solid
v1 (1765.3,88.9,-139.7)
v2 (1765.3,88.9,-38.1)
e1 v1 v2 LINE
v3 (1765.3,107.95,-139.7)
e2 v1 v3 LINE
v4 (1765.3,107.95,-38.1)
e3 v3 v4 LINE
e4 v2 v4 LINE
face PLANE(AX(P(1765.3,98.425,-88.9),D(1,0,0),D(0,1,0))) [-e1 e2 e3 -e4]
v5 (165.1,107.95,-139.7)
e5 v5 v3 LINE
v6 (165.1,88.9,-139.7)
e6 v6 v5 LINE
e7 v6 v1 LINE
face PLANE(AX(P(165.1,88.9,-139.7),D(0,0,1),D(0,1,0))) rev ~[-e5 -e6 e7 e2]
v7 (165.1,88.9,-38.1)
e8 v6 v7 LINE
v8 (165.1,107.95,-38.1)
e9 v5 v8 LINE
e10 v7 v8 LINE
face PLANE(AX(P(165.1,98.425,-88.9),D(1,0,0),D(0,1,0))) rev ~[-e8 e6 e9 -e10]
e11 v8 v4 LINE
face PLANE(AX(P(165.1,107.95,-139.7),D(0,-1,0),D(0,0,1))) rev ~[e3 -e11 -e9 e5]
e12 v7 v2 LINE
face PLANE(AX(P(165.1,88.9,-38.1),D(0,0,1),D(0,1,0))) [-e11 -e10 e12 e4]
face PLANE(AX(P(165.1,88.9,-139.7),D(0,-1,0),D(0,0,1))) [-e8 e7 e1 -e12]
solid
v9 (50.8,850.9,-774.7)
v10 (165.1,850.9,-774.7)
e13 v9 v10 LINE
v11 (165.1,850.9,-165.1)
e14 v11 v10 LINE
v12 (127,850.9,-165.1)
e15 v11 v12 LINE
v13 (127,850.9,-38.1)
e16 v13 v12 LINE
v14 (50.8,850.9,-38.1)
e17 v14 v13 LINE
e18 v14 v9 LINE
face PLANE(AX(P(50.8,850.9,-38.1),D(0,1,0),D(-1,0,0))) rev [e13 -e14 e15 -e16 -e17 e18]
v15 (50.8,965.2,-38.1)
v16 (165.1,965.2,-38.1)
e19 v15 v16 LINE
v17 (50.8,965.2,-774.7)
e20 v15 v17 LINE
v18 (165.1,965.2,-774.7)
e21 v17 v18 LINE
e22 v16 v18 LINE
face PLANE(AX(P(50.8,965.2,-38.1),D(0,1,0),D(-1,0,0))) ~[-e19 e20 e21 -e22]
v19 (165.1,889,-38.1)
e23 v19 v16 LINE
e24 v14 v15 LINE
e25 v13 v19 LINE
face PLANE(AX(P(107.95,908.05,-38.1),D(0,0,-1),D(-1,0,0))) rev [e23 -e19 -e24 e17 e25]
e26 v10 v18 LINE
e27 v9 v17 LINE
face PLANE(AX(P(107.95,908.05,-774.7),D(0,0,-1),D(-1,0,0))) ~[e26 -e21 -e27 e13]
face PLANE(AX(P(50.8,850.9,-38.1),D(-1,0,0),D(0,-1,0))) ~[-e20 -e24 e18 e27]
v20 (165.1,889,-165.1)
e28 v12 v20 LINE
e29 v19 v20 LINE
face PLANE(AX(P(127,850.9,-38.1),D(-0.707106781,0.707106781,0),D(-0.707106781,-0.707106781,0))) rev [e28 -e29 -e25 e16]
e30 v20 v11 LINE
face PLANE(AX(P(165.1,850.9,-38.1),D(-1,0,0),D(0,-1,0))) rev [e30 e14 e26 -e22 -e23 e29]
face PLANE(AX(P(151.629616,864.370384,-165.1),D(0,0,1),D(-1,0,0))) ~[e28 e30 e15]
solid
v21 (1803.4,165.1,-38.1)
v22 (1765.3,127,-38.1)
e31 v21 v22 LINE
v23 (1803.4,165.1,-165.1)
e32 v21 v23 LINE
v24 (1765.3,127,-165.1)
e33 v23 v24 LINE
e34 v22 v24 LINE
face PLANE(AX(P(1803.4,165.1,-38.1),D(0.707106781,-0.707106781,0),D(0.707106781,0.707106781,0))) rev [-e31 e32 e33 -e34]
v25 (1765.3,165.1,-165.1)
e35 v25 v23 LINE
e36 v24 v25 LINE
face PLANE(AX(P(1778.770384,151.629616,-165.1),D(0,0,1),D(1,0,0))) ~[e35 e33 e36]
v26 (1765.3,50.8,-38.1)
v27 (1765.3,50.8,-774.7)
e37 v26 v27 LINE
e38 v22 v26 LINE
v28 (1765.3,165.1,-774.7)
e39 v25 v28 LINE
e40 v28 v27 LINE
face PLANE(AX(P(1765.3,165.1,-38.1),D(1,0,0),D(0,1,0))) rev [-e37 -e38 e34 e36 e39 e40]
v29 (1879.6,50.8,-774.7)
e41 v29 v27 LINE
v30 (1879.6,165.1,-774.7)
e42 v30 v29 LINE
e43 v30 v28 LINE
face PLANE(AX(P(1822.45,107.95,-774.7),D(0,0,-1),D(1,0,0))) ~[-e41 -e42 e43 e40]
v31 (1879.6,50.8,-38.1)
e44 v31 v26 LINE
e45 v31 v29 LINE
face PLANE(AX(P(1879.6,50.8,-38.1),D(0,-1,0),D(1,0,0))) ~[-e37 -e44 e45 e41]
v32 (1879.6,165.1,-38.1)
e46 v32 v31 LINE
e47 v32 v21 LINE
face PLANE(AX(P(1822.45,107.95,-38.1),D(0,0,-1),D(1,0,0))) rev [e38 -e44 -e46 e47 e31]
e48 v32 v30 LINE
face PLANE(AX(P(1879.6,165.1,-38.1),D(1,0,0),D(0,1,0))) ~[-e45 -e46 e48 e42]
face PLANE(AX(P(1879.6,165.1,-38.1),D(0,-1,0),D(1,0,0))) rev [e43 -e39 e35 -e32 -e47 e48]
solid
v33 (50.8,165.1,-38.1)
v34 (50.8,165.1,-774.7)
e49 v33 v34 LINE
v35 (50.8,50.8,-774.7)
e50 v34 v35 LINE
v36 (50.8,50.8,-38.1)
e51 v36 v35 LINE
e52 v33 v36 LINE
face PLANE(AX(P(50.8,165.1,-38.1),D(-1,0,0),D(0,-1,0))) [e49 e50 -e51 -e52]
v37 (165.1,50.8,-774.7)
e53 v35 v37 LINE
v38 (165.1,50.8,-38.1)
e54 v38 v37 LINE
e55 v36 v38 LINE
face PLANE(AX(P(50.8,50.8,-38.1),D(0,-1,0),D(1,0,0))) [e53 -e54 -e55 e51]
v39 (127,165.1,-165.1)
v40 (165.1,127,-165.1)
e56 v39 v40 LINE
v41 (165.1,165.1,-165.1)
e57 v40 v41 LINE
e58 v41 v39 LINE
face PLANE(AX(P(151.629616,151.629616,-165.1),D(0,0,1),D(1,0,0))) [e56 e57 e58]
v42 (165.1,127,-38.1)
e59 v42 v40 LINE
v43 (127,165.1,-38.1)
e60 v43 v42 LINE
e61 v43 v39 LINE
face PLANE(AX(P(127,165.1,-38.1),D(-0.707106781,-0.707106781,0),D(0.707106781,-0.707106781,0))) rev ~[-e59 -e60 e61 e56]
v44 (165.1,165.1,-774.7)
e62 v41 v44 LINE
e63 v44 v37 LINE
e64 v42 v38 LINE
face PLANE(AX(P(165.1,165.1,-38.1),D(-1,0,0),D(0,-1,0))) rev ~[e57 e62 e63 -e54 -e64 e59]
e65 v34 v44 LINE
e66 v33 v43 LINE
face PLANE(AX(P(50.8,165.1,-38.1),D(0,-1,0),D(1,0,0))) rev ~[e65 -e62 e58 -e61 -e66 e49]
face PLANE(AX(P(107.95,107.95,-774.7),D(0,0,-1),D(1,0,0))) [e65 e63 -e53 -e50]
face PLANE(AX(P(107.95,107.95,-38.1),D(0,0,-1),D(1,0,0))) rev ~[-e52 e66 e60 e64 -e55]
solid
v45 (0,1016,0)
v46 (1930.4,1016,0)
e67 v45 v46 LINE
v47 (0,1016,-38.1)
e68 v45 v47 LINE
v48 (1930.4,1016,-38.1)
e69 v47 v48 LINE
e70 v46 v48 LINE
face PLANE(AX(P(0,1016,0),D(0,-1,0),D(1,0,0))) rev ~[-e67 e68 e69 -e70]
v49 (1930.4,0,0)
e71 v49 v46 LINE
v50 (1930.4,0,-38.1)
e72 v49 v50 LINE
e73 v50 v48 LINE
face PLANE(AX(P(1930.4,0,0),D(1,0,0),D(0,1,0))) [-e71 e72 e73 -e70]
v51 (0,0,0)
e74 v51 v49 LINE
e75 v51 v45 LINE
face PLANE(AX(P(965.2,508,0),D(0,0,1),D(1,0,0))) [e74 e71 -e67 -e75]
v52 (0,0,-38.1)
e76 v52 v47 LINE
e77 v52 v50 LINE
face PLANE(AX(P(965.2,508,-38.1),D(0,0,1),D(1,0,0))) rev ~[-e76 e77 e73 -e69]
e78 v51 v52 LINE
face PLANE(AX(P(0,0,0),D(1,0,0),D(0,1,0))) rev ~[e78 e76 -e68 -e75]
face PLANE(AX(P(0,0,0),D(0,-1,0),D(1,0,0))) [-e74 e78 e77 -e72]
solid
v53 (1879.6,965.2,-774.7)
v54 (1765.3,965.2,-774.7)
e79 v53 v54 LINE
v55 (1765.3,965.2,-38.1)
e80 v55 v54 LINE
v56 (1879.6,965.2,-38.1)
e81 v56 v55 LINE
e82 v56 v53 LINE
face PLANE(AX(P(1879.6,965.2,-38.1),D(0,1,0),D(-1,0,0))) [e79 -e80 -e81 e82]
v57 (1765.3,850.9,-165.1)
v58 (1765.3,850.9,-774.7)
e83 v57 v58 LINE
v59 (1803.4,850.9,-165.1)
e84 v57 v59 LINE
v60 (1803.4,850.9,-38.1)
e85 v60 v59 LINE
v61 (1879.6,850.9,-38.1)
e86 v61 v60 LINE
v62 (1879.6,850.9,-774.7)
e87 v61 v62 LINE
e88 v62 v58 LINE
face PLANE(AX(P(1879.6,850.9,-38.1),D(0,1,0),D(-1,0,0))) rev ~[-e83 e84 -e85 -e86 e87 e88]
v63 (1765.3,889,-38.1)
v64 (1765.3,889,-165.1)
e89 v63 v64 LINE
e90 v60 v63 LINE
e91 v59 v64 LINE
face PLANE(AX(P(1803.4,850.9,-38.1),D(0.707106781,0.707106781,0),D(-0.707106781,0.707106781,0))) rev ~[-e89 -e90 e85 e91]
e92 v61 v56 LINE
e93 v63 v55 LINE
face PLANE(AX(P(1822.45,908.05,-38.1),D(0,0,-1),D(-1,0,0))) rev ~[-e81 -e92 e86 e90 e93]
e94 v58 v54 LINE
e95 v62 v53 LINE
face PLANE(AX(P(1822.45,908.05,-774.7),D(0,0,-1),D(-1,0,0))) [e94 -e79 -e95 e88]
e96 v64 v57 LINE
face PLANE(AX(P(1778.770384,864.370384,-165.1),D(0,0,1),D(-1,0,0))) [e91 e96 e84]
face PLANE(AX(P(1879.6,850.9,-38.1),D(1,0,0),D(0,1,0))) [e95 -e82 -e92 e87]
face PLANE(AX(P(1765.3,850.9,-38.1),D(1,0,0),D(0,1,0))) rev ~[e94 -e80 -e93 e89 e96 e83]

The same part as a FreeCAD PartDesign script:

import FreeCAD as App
import Part
import Sketcher

V = App.Vector
Q = App.Units.Quantity

doc = App.newDocument("Part")
params = doc.addObject("Spreadsheet::Sheet", "Params")
for row, (alias, value) in enumerate([
    ("sketch1_width", "76 in"),
    ("sketch1_height", "40 in"),
    ("pad1_length", "1.5 in"),
    ("sketch2_width", "4.5 in"),
    ("pad2_length", "29 in"),
    ("sketch3_width", "1.5 in"),
    ("pocket1_length", "5 in"),
    ("sketch4_height", "4 in"),
    ("sketch4_width", "0.75 in"),
    ("pad3_length", "63 in"),
], start=1):
    params.set(f"A{row}", alias)
    params.set(f"B{row}", "=" + value)
    params.setAlias(f"B{row}", alias)

body = doc.addObject("PartDesign::Body", "Body")

# Sketch on XY plane
sketch1 = body.newObject("Sketcher::SketchObject", "Sketch")
sketch1.AttachmentSupport = (doc.getObject("XY_Plane"), [""])
sketch1.MapMode = "FlatFace"
sketch1.addGeometry([
    Part.LineSegment(V(0, 1016, 0), V(0, 0, 0)),
    Part.LineSegment(V(0, 0, 0), V(1930, 0, 0)),
    Part.LineSegment(V(1930, 0, 0), V(1930, 1016, 0)),
    Part.LineSegment(V(1930, 1016, 0), V(0, 1016, 0)),
], False)
sketch1.addConstraint([
    Sketcher.Constraint("Coincident", 0, 2, 1, 1),
    Sketcher.Constraint("Coincident", 1, 2, 2, 1),
    Sketcher.Constraint("Coincident", 2, 2, 3, 1),
    Sketcher.Constraint("Coincident", 3, 2, 0, 1),
    Sketcher.Constraint("Vertical", 0),
    Sketcher.Constraint("Horizontal", 1),
    Sketcher.Constraint("Vertical", 2),
    Sketcher.Constraint("Horizontal", 3),
    Sketcher.Constraint("Coincident", 0, 2, -1, 1),
    Sketcher.Constraint("DistanceX", 1, 1, 1, 2, Q("76 in")),
    Sketcher.Constraint("DistanceY", 0, 2, 0, 1, Q("40 in")),
])
sketch1.setExpression("Constraints[9]", "Params.sketch1_width")
sketch1.setExpression("Constraints[10]", "Params.sketch1_height")
pad1 = body.newObject("PartDesign::Pad", "Pad")
pad1.Profile = sketch1
pad1.setExpression("Length", "Params.pad1_length")
pad1.Reversed = True
body2 = doc.addObject("PartDesign::Body", "Body001")

# Sketch on XY plane
sketch2 = body2.newObject("Sketcher::SketchObject", "Sketch001")
sketch2.AttachmentSupport = (doc.getObject("XY_Plane001"), [""])
sketch2.MapMode = "FlatFace"
sketch2.AttachmentOffset = App.Placement(V(0, 0, -1.5 * 25.4), App.Rotation())
sketch2.addGeometry([
    Part.LineSegment(V(51, 51, 0), V(51, 165, 0)),
    Part.LineSegment(V(51, 165, 0), V(165, 165, 0)),
    Part.LineSegment(V(165, 165, 0), V(165, 51, 0)),
    Part.LineSegment(V(165, 51, 0), V(51, 51, 0)),
], False)
sketch2.addConstraint([
    Sketcher.Constraint("Coincident", 0, 2, 1, 1),
    Sketcher.Constraint("Coincident", 1, 2, 2, 1),
    Sketcher.Constraint("Coincident", 2, 2, 3, 1),
    Sketcher.Constraint("Coincident", 3, 2, 0, 1),
    Sketcher.Constraint("Vertical", 0),
    Sketcher.Constraint("Horizontal", 1),
    Sketcher.Constraint("Vertical", 2),
    Sketcher.Constraint("Horizontal", 3),
    Sketcher.Constraint("Equal", 3, 0),
    Sketcher.Constraint("DistanceX", 1, 1, 1, 2, Q("4.5 in")),
    Sketcher.Constraint("DistanceX", -1, 1, 0, 2, Q("2 in")),
    Sketcher.Constraint("DistanceY", -1, 1, 2, 2, Q("2 in")),
])
sketch2.setExpression("Constraints[9]", "Params.sketch2_width")
pad2 = body2.newObject("PartDesign::Pad", "Pad001")
pad2.Profile = sketch2
pad2.setExpression("Length", "Params.pad2_length")
pad2.Reversed = True

# Sketch on XY plane
sketch3 = body2.newObject("Sketcher::SketchObject", "Sketch002")
sketch3.AttachmentSupport = (doc.getObject("XY_Plane001"), [""])
sketch3.MapMode = "FlatFace"
sketch3.AttachmentOffset = App.Placement(V(0, 0, -1.5 * 25.4), App.Rotation())
sketch3.addGeometry([
    Part.LineSegment(V(165, 165, 0), V(127, 165, 0)),
    Part.LineSegment(V(127, 165, 0), V(165, 127, 0)),
    Part.LineSegment(V(165, 127, 0), V(165, 165, 0)),
], False)
sketch3.addConstraint([
    Sketcher.Constraint("Coincident", 0, 2, 1, 1),
    Sketcher.Constraint("Coincident", 1, 2, 2, 1),
    Sketcher.Constraint("Coincident", 2, 2, 0, 1),
    Sketcher.Constraint("Horizontal", 0),
    Sketcher.Constraint("Vertical", 2),
    Sketcher.Constraint("Equal", 0, 2),
    Sketcher.Constraint("DistanceX", 0, 2, 0, 1, Q("1.5 in")),
    Sketcher.Constraint("DistanceX", -1, 1, 0, 2, Q("5 in")),
    Sketcher.Constraint("DistanceY", -1, 1, 1, 2, Q("5 in")),
])
sketch3.setExpression("Constraints[6]", "Params.sketch3_width")
pocket1 = body2.newObject("PartDesign::Pocket", "Pocket")
pocket1.Profile = sketch3
pocket1.setExpression("Length", "Params.pocket1_length")
body3 = doc.addObject("PartDesign::Body", "Body002")
doc.recompute()

mirroring = doc.addObject("Part::Mirroring", "Mirroring")
mirroring.Source = body2
mirroring.Base = V(0, 508, 0)
mirroring.Normal = V(0, -1, 0)
body3.BaseFeature = mirroring
doc.recompute()
body4 = doc.addObject("PartDesign::Body", "Body003")
doc.recompute()

mirroring2 = doc.addObject("Part::Mirroring", "Mirroring001")
mirroring2.Source = body3
mirroring2.Base = V(965.2, 0, 0)
mirroring2.Normal = V(1, 0, 0)
body4.BaseFeature = mirroring2
doc.recompute()
body5 = doc.addObject("PartDesign::Body", "Body004")
doc.recompute()

mirroring3 = doc.addObject("Part::Mirroring", "Mirroring002")
mirroring3.Source = body2
mirroring3.Base = V(965.2, 0, 0)
mirroring3.Normal = V(1, 0, 0)
body5.BaseFeature = mirroring3
doc.recompute()
body6 = doc.addObject("PartDesign::Body", "Body005")

# Sketch on YZ plane
sketch4 = body6.newObject("Sketcher::SketchObject", "Sketch003")
sketch4.AttachmentSupport = (doc.getObject("YZ_Plane005"), [""])
sketch4.MapMode = "FlatFace"
sketch4.AttachmentOffset = App.Placement(V(0, 0, 6.5 * 25.4), App.Rotation())
sketch4.addGeometry([
    Part.LineSegment(V(89, -38, 0), V(89, -140, 0)),
    Part.LineSegment(V(89, -140, 0), V(108, -140, 0)),
    Part.LineSegment(V(108, -140, 0), V(108, -38, 0)),
    Part.LineSegment(V(108, -38, 0), V(89, -38, 0)),
], False)
sketch4.addConstraint([
    Sketcher.Constraint("Coincident", 0, 2, 1, 1),
    Sketcher.Constraint("Coincident", 1, 2, 2, 1),
    Sketcher.Constraint("Coincident", 2, 2, 3, 1),
    Sketcher.Constraint("Coincident", 3, 2, 0, 1),
    Sketcher.Constraint("Vertical", 0),
    Sketcher.Constraint("Horizontal", 1),
    Sketcher.Constraint("Vertical", 2),
    Sketcher.Constraint("Horizontal", 3),
    Sketcher.Constraint("DistanceY", 0, 2, 0, 1, Q("4 in")),
    Sketcher.Constraint("DistanceX", 1, 1, 1, 2, Q("0.75 in")),
    Sketcher.Constraint("DistanceX", -1, 1, 0, 2, Q("3.5 in")),
    Sketcher.Constraint("DistanceY", 0, 2, -1, 1, Q("5.5 in")),
])
sketch4.setExpression("Constraints[8]", "Params.sketch4_height")
sketch4.setExpression("Constraints[9]", "Params.sketch4_width")
pad3 = body6.newObject("PartDesign::Pad", "Pad002")
pad3.Profile = sketch4
pad3.setExpression("Length", "Params.pad3_length")
mirroring.Visibility = False
mirroring2.Visibility = False
mirroring3.Visibility = False

doc.recompute()
